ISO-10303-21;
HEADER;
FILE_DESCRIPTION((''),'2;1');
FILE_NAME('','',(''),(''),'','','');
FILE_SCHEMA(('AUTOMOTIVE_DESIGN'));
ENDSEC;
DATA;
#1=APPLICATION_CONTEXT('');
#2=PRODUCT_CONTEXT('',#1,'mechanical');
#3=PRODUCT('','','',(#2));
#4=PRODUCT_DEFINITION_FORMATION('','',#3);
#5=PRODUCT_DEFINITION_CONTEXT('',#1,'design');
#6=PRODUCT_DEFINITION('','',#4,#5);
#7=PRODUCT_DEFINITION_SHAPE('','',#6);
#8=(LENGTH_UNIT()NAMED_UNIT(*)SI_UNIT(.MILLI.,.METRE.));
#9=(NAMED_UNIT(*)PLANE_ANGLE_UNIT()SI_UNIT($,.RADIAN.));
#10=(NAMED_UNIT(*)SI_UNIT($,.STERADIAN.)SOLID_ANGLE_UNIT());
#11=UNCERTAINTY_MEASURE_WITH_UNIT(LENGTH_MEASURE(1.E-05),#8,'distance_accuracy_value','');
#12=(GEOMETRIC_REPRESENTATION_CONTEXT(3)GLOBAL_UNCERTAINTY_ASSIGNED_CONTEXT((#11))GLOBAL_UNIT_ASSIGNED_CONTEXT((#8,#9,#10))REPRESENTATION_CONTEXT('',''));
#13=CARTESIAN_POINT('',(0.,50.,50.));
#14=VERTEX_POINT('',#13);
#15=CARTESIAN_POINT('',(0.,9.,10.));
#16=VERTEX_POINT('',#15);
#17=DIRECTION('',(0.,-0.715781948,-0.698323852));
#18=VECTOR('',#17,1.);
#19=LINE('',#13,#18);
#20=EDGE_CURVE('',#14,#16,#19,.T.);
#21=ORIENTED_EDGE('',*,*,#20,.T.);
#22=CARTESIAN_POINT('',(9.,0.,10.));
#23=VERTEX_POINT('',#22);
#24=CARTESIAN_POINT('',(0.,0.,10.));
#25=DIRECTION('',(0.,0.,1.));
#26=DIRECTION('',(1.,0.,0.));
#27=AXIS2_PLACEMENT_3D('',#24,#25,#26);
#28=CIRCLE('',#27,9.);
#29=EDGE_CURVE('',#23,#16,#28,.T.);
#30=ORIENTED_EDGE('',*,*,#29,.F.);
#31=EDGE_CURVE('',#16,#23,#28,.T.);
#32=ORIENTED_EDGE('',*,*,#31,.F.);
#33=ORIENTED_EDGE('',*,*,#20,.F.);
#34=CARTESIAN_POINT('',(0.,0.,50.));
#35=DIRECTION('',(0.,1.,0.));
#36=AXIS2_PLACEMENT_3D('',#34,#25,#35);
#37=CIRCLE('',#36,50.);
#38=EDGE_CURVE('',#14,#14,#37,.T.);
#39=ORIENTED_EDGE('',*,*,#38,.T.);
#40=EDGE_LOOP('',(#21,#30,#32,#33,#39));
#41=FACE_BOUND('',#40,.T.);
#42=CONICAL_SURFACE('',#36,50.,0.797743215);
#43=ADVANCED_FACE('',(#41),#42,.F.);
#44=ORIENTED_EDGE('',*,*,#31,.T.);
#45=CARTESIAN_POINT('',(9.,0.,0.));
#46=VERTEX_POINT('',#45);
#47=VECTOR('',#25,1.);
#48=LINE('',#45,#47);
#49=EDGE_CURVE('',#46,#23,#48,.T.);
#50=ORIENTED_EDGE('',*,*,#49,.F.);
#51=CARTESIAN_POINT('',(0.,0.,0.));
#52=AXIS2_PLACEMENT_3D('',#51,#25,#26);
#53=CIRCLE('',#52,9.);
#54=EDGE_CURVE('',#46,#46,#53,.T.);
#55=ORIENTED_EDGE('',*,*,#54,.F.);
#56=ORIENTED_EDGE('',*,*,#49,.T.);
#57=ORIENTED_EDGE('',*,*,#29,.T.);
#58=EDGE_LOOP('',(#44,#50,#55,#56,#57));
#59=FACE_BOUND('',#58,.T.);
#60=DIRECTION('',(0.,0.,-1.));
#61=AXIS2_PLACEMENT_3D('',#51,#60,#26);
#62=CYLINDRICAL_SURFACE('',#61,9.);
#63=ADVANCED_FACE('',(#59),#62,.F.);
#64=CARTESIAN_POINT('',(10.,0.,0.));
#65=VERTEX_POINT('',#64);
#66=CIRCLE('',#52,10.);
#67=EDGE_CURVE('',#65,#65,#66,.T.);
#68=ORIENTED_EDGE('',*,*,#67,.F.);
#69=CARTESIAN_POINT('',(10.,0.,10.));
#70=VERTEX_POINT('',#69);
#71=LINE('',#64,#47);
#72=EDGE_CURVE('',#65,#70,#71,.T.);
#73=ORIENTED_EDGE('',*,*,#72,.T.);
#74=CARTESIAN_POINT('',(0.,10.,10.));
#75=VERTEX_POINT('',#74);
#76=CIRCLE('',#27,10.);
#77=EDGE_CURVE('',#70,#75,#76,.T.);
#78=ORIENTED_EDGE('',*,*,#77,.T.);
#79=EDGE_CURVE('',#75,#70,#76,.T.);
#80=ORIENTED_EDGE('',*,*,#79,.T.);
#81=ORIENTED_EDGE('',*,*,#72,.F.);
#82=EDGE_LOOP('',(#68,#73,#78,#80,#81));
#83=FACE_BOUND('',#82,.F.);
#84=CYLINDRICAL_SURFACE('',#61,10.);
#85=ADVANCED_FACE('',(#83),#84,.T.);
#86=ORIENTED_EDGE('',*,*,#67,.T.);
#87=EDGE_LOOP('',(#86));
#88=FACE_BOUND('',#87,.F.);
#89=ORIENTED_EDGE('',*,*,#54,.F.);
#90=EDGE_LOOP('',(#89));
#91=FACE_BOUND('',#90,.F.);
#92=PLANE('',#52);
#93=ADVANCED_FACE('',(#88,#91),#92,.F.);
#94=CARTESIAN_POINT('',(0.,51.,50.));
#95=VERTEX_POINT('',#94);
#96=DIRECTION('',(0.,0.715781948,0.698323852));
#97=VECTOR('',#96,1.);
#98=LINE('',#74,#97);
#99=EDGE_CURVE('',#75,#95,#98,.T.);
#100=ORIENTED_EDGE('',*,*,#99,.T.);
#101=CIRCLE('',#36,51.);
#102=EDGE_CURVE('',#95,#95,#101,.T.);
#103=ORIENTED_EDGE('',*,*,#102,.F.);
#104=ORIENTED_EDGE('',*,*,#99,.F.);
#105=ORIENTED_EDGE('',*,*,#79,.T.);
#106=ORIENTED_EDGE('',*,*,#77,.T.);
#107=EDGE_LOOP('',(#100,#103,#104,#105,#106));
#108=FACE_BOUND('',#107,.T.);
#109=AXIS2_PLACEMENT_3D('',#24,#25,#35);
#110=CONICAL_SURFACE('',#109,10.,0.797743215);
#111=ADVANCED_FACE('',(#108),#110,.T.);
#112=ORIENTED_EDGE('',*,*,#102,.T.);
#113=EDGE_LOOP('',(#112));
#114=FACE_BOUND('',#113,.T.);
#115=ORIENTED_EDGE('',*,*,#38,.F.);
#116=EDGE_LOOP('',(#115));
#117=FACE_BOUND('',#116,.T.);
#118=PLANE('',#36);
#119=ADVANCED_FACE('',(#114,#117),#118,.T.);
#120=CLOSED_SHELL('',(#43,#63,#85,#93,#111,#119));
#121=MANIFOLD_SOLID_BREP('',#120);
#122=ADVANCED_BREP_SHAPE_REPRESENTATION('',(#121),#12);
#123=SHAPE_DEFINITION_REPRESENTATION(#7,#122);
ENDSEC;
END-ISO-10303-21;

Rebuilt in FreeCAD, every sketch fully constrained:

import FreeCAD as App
import Part
import Sketcher
from FreeCAD import Vector


def add_polygon(sketch, points):
    """Adds a closed chain of lines whose ends are joined by coincident constraints."""
    first, n = sketch.GeometryCount, len(points)
    for a, b in zip(points, points[1:] + points[:1]):
        sketch.addGeometry(Part.LineSegment(App.Vector(*a, 0), App.Vector(*b, 0)), False)
    for i in range(n):
        sketch.addConstraint(Sketcher.Constraint("Coincident", first + i, 2, first + (i + 1) % n, 1))

doc = App.newDocument("Part")
body = doc.addObject("PartDesign::Body", "Body")

# Sketch on XY plane
sketch1 = body.newObject("Sketcher::SketchObject", "Sketch")
sketch1.AttachmentSupport = (doc.getObject("XY_Plane"), [""])
sketch1.MapMode = "FlatFace"
sketch1.addGeometry(Part.Circle(Vector(0, 0, 0), Vector(0, 0, 1), 10), False)
sketch1.addGeometry(Part.Circle(Vector(0, 0, 0), Vector(0, 0, 1), 9), False)
sketch1.addConstraint(Sketcher.Constraint("Coincident", 0, 3, -1, 1))
sketch1.addConstraint(Sketcher.Constraint("Coincident", 1, 3, -1, 1))
sketch1.addConstraint(Sketcher.Constraint("Diameter", 0, 20.0))
sketch1.addConstraint(Sketcher.Constraint("Diameter", 1, 18.0))
pad1 = body.newObject("PartDesign::Pad", "Pad")
pad1.Profile = sketch1
pad1.Length = 10

# Sketch on YZ plane
sketch2 = body.newObject("Sketcher::SketchObject", "Sketch001")
sketch2.AttachmentSupport = (doc.getObject("YZ_Plane"), [""])
sketch2.MapMode = "FlatFace"
add_polygon(sketch2, [(10, 10), (51, 50), (50, 50), (9, 10)])  # lines 0-3
sketch2.addConstraint(Sketcher.Constraint("Horizontal", 1))
sketch2.addConstraint(Sketcher.Constraint("Horizontal", 3))
sketch2.addConstraint(Sketcher.Constraint("Parallel", 0, 2))
sketch2.addConstraint(Sketcher.Constraint("DistanceX", 1, 2, 1, 1, 1.0))
sketch2.addConstraint(Sketcher.Constraint("DistanceX", -1, 1, 0, 2, 51.0))
sketch2.addConstraint(Sketcher.Constraint("DistanceY", -1, 1, 0, 2, 50.0))
sketch2.addConstraint(Sketcher.Constraint("DistanceX", -1, 1, 2, 2, 9.0))
sketch2.addConstraint(Sketcher.Constraint("DistanceY", -1, 1, 2, 2, 10.0))
revolution = body.newObject("PartDesign::Revolution", "Revolution")
revolution.Profile = sketch2
revolution.ReferenceAxis = (sketch2, ["V_Axis"])
revolution.Angle = 360

doc.recompute()
